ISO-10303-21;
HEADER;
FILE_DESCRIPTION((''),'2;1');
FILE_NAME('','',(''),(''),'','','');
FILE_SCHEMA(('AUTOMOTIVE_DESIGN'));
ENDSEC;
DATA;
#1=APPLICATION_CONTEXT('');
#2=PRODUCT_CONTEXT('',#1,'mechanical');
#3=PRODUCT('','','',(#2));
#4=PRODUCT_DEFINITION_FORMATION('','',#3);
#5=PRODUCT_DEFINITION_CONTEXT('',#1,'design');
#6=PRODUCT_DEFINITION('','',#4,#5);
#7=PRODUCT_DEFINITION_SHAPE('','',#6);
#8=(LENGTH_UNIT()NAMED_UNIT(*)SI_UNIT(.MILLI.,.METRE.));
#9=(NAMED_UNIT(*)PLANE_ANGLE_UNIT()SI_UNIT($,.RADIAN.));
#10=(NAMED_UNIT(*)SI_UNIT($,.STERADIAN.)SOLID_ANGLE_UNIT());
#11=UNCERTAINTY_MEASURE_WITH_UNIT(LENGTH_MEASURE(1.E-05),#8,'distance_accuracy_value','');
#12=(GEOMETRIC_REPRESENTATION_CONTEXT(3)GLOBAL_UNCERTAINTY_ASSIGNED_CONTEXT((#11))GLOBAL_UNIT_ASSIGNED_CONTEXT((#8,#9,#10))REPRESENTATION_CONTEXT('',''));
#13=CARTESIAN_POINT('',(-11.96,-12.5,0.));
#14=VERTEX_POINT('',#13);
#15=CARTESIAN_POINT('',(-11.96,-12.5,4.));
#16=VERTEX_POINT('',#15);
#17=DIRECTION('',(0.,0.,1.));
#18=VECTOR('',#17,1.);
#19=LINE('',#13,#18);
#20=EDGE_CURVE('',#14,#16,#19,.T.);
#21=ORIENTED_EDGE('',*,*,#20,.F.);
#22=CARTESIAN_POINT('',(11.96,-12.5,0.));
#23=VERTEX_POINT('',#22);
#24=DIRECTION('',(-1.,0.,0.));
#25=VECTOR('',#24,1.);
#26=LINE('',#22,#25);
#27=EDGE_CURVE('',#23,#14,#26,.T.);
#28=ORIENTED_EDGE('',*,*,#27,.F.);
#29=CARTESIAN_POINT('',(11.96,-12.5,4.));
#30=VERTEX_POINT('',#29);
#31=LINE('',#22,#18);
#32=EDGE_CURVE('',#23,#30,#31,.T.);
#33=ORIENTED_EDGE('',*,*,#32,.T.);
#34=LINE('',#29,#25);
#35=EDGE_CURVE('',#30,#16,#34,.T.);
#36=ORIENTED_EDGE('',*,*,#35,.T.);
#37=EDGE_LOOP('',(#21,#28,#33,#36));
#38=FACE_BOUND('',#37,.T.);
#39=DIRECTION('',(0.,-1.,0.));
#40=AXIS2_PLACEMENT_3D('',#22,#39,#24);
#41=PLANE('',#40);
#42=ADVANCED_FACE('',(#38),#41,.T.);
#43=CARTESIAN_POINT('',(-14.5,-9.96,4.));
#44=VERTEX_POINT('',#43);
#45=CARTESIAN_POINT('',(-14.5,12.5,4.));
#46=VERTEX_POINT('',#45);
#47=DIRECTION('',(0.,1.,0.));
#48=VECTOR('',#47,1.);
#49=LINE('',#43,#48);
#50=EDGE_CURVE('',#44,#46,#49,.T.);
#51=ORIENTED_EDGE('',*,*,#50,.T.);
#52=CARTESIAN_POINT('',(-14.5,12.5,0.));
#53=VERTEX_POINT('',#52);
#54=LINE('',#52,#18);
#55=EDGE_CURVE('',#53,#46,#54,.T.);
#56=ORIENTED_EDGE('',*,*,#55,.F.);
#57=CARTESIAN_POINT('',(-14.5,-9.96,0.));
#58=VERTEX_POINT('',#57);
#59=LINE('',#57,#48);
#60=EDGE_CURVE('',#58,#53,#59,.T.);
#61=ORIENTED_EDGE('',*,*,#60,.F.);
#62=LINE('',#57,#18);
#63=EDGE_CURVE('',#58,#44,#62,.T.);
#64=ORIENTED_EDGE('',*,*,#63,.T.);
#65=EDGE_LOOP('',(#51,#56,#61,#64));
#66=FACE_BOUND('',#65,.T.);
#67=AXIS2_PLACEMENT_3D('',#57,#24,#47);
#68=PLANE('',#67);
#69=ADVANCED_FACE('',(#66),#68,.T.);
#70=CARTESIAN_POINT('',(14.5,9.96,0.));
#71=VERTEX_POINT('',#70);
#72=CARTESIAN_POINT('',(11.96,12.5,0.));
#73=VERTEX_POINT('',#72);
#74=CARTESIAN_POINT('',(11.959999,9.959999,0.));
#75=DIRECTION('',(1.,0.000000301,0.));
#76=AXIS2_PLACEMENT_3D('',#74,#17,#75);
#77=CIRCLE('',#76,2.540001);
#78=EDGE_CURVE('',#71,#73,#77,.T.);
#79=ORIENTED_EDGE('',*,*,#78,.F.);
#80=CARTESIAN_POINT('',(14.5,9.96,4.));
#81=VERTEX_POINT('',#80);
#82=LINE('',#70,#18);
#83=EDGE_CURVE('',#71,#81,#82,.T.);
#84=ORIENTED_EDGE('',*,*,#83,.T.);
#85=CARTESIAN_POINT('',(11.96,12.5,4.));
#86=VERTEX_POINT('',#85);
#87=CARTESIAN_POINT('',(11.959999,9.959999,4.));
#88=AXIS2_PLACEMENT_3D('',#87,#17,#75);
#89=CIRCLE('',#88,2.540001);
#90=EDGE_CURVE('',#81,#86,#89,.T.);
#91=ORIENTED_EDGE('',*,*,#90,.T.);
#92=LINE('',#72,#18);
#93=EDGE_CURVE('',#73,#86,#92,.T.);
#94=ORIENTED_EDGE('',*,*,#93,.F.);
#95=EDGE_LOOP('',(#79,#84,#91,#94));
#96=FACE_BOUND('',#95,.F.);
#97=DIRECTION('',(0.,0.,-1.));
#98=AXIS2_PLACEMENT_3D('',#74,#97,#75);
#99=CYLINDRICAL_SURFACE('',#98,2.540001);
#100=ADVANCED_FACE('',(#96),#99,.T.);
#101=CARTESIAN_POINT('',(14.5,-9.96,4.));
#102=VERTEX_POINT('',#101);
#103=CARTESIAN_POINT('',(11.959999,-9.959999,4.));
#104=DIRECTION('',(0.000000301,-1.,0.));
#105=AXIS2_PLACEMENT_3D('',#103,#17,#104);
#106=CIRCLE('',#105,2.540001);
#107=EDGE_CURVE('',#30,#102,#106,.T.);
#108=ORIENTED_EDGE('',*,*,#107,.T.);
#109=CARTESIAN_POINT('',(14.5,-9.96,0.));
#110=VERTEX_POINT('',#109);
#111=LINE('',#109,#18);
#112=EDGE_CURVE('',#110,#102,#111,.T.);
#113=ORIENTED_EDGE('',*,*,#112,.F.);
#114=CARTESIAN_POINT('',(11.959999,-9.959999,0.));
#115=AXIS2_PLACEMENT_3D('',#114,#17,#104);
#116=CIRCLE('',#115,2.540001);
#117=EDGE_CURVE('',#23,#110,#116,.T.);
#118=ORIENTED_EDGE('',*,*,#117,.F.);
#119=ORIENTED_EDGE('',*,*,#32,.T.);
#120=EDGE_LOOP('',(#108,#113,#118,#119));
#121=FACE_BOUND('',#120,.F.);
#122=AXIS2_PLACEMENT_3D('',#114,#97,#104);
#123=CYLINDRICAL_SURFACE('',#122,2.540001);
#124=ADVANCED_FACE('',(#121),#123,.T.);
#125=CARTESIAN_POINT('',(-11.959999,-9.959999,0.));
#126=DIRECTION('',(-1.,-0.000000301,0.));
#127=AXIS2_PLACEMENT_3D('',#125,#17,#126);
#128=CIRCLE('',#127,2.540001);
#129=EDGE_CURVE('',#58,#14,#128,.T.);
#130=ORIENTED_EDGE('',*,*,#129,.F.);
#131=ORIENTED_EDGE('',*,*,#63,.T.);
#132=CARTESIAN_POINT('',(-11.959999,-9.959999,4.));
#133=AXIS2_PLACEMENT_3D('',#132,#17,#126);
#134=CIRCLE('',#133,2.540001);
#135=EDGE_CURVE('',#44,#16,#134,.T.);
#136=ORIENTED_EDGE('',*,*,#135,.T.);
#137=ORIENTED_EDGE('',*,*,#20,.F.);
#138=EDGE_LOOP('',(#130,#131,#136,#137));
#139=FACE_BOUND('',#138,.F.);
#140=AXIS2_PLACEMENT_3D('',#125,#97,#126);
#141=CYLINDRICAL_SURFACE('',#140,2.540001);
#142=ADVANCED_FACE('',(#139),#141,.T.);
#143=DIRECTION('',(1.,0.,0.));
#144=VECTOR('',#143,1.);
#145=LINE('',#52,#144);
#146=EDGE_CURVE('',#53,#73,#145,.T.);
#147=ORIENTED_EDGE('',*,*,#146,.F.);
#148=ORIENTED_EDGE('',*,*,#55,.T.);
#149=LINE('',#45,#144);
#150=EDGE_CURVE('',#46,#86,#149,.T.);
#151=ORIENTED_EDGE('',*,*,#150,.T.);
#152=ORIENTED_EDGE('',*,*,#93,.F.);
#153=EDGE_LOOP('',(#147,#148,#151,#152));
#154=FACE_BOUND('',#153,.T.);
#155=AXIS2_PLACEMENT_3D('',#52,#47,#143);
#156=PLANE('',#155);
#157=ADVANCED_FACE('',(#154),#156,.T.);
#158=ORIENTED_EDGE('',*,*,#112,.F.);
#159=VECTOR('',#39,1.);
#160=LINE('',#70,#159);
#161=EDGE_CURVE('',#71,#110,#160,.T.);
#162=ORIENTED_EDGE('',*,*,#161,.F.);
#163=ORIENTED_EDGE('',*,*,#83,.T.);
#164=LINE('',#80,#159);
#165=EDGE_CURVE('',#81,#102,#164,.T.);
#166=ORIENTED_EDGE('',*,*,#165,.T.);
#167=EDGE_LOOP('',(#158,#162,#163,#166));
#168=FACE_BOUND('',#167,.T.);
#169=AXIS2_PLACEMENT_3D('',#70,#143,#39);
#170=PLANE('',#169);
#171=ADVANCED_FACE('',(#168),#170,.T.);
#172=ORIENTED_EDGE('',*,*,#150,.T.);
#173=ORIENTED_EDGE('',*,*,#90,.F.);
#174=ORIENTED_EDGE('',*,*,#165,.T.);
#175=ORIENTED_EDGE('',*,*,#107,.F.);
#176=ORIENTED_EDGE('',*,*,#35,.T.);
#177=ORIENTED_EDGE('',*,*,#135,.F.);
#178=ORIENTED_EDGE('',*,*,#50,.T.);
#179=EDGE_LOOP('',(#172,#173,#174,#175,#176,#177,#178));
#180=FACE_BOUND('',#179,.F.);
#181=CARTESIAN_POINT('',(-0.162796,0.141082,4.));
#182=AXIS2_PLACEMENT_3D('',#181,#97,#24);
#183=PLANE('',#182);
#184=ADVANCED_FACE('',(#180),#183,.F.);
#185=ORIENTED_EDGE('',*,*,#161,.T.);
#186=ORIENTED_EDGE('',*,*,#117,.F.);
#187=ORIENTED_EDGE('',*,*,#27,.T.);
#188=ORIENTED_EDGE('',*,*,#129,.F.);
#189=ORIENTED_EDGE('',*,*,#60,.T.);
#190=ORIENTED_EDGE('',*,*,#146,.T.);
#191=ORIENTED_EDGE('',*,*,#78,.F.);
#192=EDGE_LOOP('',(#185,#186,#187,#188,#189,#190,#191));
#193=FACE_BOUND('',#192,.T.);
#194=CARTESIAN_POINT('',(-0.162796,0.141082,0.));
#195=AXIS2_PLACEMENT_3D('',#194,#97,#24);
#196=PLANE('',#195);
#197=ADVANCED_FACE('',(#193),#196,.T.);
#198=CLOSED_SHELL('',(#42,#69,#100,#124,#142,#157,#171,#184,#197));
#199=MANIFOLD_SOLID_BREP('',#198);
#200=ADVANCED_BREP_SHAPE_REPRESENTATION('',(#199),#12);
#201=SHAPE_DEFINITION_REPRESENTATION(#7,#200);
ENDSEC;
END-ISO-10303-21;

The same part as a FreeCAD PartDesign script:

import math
import FreeCAD as App
import Part
import Sketcher

doc = App.newDocument("Part")
body = doc.addObject("PartDesign::Body", "Body")

sketch1 = body.newObject("Sketcher::SketchObject", "Sketch")
sketch1.AttachmentSupport = (doc.getObject("XY_Plane"), [""])
sketch1.MapMode = "FlatFace"
sketch1.addGeometry(Part.LineSegment(App.Vector(11.96, 12.5, 0), App.Vector(-14.5, 12.5, 0)), False)
sketch1.addGeometry(Part.LineSegment(App.Vector(-14.5, 12.5, 0), App.Vector(-14.5, -9.96, 0)), False)
sketch1.addGeometry(Part.ArcOfCircle(Part.Circle(App.Vector(-11.959999, -9.959999, 0), App.Vector(0, 0, 1), 2.540001), math.radians(-179.999983), math.radians(-90.000017)), False)
sketch1.addGeometry(Part.LineSegment(App.Vector(-11.96, -12.5, 0), App.Vector(11.96, -12.5, 0)), False)
sketch1.addGeometry(Part.ArcOfCircle(Part.Circle(App.Vector(11.959999, -9.959999, 0), App.Vector(0, 0, 1), 2.540001), math.radians(-89.999983), math.radians(-0.000017)), False)
sketch1.addGeometry(Part.LineSegment(App.Vector(14.5, -9.96, 0), App.Vector(14.5, 9.96, 0)), False)
sketch1.addGeometry(Part.ArcOfCircle(Part.Circle(App.Vector(11.959999, 9.959999, 0), App.Vector(0, 0, 1), 2.540001), math.radians(0.000017), math.radians(89.999983)), False)
sketch1.addConstraint(Sketcher.Constraint("Coincident", 0, 2, 1, 1))
sketch1.addConstraint(Sketcher.Constraint("Tangent", 1, 2, 2, 1))
sketch1.addConstraint(Sketcher.Constraint("Tangent", 2, 2, 3, 1))
sketch1.addConstraint(Sketcher.Constraint("Tangent", 3, 2, 4, 1))
sketch1.addConstraint(Sketcher.Constraint("Tangent", 4, 2, 5, 1))
sketch1.addConstraint(Sketcher.Constraint("Tangent", 5, 2, 6, 1))
sketch1.addConstraint(Sketcher.Constraint("Tangent", 6, 2, 0, 1))
sketch1.addConstraint(Sketcher.Constraint("Horizontal", 0))
sketch1.addConstraint(Sketcher.Constraint("Vertical", 1))
sketch1.addConstraint(Sketcher.Constraint("Horizontal", 3))
sketch1.addConstraint(Sketcher.Constraint("Vertical", 5))
sketch1.addConstraint(Sketcher.Constraint("Equal", 2, 4))
sketch1.addConstraint(Sketcher.Constraint("Equal", 4, 6))
sketch1.addConstraint(Sketcher.Constraint("Symmetric", 2, 3, 6, 3, -1, 1))
sketch1.addConstraint(Sketcher.Constraint("Radius", 2, 2.540001))
sketch1.addConstraint(Sketcher.Constraint("DistanceY", 2, 2, 0, 2, 25.0))
sketch1.addConstraint(Sketcher.Constraint("DistanceX", 0, 2, 5, 2, 29.0))
pad1 = body.newObject("PartDesign::Pad", "Pad")
pad1.Profile = sketch1
pad1.Length = 4

doc.recompute()
